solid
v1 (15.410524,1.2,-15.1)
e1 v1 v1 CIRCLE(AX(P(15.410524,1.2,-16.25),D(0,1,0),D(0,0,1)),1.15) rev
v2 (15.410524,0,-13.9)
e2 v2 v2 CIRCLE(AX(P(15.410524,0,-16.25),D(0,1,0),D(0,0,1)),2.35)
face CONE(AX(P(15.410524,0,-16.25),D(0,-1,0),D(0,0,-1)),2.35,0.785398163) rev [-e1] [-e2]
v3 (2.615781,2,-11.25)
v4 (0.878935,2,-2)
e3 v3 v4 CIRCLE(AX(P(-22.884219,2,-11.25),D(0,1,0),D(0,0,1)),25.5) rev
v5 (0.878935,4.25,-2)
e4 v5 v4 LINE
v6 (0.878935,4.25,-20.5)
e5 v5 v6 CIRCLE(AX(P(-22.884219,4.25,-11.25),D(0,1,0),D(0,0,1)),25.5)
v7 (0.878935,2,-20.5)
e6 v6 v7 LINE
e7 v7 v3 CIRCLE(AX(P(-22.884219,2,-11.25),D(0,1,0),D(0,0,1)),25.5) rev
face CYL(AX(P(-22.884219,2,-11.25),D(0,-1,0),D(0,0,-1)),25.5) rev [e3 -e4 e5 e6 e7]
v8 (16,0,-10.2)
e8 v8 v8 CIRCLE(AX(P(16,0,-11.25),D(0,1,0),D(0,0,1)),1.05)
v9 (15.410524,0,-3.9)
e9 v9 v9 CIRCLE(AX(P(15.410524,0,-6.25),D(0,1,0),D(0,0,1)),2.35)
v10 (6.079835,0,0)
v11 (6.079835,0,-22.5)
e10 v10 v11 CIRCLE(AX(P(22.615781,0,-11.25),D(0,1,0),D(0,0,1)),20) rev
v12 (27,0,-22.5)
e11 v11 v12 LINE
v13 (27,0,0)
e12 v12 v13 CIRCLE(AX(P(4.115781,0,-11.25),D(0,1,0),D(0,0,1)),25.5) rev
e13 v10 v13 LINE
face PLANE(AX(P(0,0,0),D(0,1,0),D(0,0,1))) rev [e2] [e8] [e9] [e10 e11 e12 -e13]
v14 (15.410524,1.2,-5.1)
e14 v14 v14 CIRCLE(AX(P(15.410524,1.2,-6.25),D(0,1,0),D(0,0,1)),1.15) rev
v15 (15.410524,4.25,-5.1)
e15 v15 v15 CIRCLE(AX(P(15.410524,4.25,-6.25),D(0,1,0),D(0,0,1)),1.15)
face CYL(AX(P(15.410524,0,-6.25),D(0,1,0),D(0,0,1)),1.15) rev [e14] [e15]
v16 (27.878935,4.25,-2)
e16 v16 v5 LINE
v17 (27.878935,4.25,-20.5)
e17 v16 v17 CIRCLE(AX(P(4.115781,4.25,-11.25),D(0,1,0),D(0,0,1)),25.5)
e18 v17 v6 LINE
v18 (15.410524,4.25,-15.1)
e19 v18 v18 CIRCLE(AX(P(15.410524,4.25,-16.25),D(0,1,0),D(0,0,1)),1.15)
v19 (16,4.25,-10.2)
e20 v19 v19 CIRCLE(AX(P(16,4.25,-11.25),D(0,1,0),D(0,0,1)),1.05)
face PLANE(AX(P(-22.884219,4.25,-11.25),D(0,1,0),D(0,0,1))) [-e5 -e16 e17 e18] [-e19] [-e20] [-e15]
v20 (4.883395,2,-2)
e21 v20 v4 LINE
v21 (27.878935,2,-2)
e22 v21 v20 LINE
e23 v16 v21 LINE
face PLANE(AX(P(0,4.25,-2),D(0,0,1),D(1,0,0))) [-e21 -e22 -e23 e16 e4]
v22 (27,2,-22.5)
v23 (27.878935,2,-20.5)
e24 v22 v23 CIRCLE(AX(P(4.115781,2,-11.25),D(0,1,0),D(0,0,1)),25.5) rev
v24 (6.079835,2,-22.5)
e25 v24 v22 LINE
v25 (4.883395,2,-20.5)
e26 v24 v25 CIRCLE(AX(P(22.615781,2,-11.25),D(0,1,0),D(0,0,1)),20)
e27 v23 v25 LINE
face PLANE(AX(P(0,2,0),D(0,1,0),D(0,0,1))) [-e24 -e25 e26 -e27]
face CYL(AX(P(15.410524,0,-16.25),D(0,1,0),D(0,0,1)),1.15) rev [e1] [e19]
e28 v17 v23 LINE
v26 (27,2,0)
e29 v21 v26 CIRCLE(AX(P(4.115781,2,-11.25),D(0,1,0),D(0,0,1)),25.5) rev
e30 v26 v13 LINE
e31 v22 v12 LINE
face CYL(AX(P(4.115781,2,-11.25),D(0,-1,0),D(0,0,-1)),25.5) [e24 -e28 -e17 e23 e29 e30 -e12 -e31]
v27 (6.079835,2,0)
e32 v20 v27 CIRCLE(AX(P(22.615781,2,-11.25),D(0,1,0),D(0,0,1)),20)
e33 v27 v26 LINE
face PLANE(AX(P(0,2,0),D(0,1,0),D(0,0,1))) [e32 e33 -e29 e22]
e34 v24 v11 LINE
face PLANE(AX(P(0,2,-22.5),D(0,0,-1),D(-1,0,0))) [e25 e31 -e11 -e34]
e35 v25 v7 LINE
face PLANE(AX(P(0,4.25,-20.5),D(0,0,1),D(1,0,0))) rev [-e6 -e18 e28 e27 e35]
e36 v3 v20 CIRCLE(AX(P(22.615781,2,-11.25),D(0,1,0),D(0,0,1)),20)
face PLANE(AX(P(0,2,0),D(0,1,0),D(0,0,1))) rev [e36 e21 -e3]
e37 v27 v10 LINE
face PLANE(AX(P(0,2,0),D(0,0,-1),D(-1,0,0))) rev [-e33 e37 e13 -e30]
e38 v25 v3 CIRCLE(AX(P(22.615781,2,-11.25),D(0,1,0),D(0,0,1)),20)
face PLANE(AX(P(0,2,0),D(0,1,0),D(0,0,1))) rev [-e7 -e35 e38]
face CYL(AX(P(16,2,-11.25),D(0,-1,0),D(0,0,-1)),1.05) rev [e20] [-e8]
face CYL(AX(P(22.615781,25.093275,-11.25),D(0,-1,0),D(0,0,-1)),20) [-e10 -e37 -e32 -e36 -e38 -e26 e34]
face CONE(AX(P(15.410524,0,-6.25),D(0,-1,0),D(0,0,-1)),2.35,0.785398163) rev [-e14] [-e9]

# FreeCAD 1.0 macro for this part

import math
import FreeCAD as App
import Part
import Sketcher
Q = App.Units.Quantity


def edges_at(feature, points):
    """Names of the edges that pass closest to the given points."""
    edges = feature.Shape.Edges
    near = lambda p: min(range(len(edges)), key=lambda i: edges[i].distToShape(Part.Vertex(*p))[0])
    return sorted({f"Edge{near(p) + 1}" for p in points})

doc = App.newDocument("Part")
body = doc.addObject("PartDesign::Body", "Body")

# Sketch on XZ plane
sketch1 = doc.addObject("Sketcher::SketchObject", "Sketch")
body.addObject(sketch1)
sketch1.AttachmentSupport = (doc.XZ_Plane, [""])
sketch1.MapMode = "FlatFace"
sketch1.addGeometry(Part.LineSegment(App.Vector(0.9, -22.5, 0), App.Vector(0.9, -20.5, 0)), False)
sketch1.addGeometry(Part.ArcOfCircle(Part.Circle(App.Vector(-22.9, -11.2, 0), App.Vector(0, 0, 1), 25.5), math.radians(-21), math.radians(21)), False)
sketch1.addGeometry(Part.LineSegment(App.Vector(0.9, -2, 0), App.Vector(0.9, 0, 0)), False)
sketch1.addGeometry(Part.LineSegment(App.Vector(0.9, 0, 0), App.Vector(27, 0, 0)), False)
sketch1.addGeometry(Part.ArcOfCircle(Part.Circle(App.Vector(4.1, -11.2, 0), App.Vector(0, 0, 1), 25.5), math.radians(-26), math.radians(26)), False)
sketch1.addGeometry(Part.LineSegment(App.Vector(27, -22.5, 0), App.Vector(0.9, -22.5, 0)), False)
sketch1.addGeometry(Part.Circle(App.Vector(16, -11.2, 0), App.Vector(0, 0, 1), 1.1), False)
sketch1.addConstraint(Sketcher.Constraint("Coincident", 0, 2, 1, 1))
sketch1.addConstraint(Sketcher.Constraint("Coincident", 1, 2, 2, 1))
sketch1.addConstraint(Sketcher.Constraint("Coincident", 2, 2, 3, 1))
sketch1.addConstraint(Sketcher.Constraint("Coincident", 3, 2, 4, 2))
sketch1.addConstraint(Sketcher.Constraint("Coincident", 4, 1, 5, 1))
sketch1.addConstraint(Sketcher.Constraint("Coincident", 5, 2, 0, 1))
sketch1.addConstraint(Sketcher.Constraint("Vertical", 0))
sketch1.addConstraint(Sketcher.Constraint("Vertical", 2))
sketch1.addConstraint(Sketcher.Constraint("Horizontal", 3))
sketch1.addConstraint(Sketcher.Constraint("Horizontal", 5))
sketch1.addConstraint(Sketcher.Constraint("Equal", 1, 4))
sketch1.addConstraint(Sketcher.Constraint("PointOnObject", 2, 2, -1))
sketch1.addConstraint(Sketcher.Constraint("Horizontal", 1, 3, 4, 3))
sketch1.addConstraint(Sketcher.Constraint("Horizontal", 4, 3, 6, 3))
sketch1.addConstraint(Sketcher.Constraint("Vertical", 0, 2, 1, 2))
sketch1.addConstraint(Sketcher.Constraint("Vertical", 3, 2, 4, 1))
sketch1.addConstraint(Sketcher.Constraint("Diameter", 6, Q("2.1 mm")))
sketch1.addConstraint(Sketcher.Constraint("Radius", 1, Q("25.5 mm")))
sketch1.addConstraint(Sketcher.Constraint("DistanceY", 0, 1, 0, 2, Q("2 mm")))
sketch1.addConstraint(Sketcher.Constraint("DistanceX", -1, 1, 6, 3, Q("16 mm")))
sketch1.addConstraint(Sketcher.Constraint("DistanceX", -1, 1, 3, 2, Q("27 mm")))
sketch1.addConstraint(Sketcher.Constraint("DistanceX", 1, 3, 4, 3, Q("27 mm")))
sketch1.addConstraint(Sketcher.Constraint("DistanceY", 0, 2, -1, 1, Q("20.5 mm")))
pad1 = doc.addObject("PartDesign::Pad", "Pad")
body.addObject(pad1)
pad1.Profile = sketch1
pad1.Length = 2
pad1.Reversed = True

# Sketch on XZ plane
sketch2 = doc.addObject("Sketcher::SketchObject", "Sketch001")
body.addObject(sketch2)
sketch2.AttachmentSupport = (doc.XZ_Plane, [""])
sketch2.MapMode = "FlatFace"
sketch2.AttachmentOffset = App.Placement(App.Vector(0, 0, -2), App.Rotation())
sketch2.addGeometry(Part.LineSegment(App.Vector(27.9, -20.5, 0), App.Vector(0.9, -20.5, 0)), False)
sketch2.addGeometry(Part.ArcOfCircle(Part.Circle(App.Vector(-22.9, -11.2, 0), App.Vector(0, 0, 1), 25.5), math.radians(-21), math.radians(21)), False)
sketch2.addGeometry(Part.LineSegment(App.Vector(0.9, -2, 0), App.Vector(27.9, -2, 0)), False)
sketch2.addGeometry(Part.ArcOfCircle(Part.Circle(App.Vector(4.1, -11.2, 0), App.Vector(0, 0, 1), 25.5), math.radians(-21), math.radians(21)), False)
sketch2.addGeometry(Part.Circle(App.Vector(16, -11.2, 0), App.Vector(0, 0, 1), 1.1), False)
sketch2.addConstraint(Sketcher.Constraint("Coincident", 0, 2, 1, 1))
sketch2.addConstraint(Sketcher.Constraint("Coincident", 1, 2, 2, 1))
sketch2.addConstraint(Sketcher.Constraint("Coincident", 2, 2, 3, 2))
sketch2.addConstraint(Sketcher.Constraint("Coincident", 3, 1, 0, 1))
sketch2.addConstraint(Sketcher.Constraint("Horizontal", 0))
sketch2.addConstraint(Sketcher.Constraint("Horizontal", 2))
sketch2.addConstraint(Sketcher.Constraint("Equal", 1, 3))
sketch2.addConstraint(Sketcher.Constraint("Horizontal", 1, 3, 3, 3))
sketch2.addConstraint(Sketcher.Constraint("Horizontal", 3, 3, 4, 3))
sketch2.addConstraint(Sketcher.Constraint("Vertical", 0, 2, 1, 2))
sketch2.addConstraint(Sketcher.Constraint("Diameter", 4, Q("2.1 mm")))
sketch2.addConstraint(Sketcher.Constraint("Radius", 1, Q("25.5 mm")))
sketch2.addConstraint(Sketcher.Constraint("DistanceX", 0, 2, 0, 1, Q("27 mm")))
sketch2.addConstraint(Sketcher.Constraint("DistanceX", -1, 1, 4, 3, Q("16 mm")))
sketch2.addConstraint(Sketcher.Constraint("DistanceY", 1, 2, -1, 1, Q("2 mm")))
sketch2.addConstraint(Sketcher.Constraint("DistanceY", 0, 2, -1, 1, Q("20.5 mm")))
sketch2.addConstraint(Sketcher.Constraint("DistanceX", 1, 3, -1, 1, Q("22.884219 mm")))
pad2 = doc.addObject("PartDesign::Pad", "Pad001")
body.addObject(pad2)
pad2.Profile = sketch2
pad2.Length = 2.25
pad2.Reversed = True

# Sketch on XZ plane
sketch3 = doc.addObject("Sketcher::SketchObject", "Sketch002")
body.addObject(sketch3)
sketch3.AttachmentSupport = (doc.XZ_Plane, [""])
sketch3.MapMode = "FlatFace"
sketch3.addGeometry(Part.LineSegment(App.Vector(6, 0, 0), App.Vector(1, 0, 0)), False)
sketch3.addGeometry(Part.LineSegment(App.Vector(1, 0, 0), App.Vector(1, -22, 0)), False)
sketch3.addGeometry(Part.LineSegment(App.Vector(1, -22, 0), App.Vector(6, -22, 0)), False)
sketch3.addGeometry(Part.ArcOfCircle(Part.Circle(App.Vector(23, -11, 0), App.Vector(0, 0, 1), 20), math.radians(146), math.radians(214)), False)
sketch3.addConstraint(Sketcher.Constraint("Coincident", 0, 2, 1, 1))
sketch3.addConstraint(Sketcher.Constraint("Coincident", 1, 2, 2, 1))
sketch3.addConstraint(Sketcher.Constraint("Coincident", 2, 2, 3, 2))
sketch3.addConstraint(Sketcher.Constraint("Coincident", 3, 1, 0, 1))
sketch3.addConstraint(Sketcher.Constraint("Horizontal", 0))
sketch3.addConstraint(Sketcher.Constraint("Vertical", 1))
sketch3.addConstraint(Sketcher.Constraint("Horizontal", 2))
sketch3.addConstraint(Sketcher.Constraint("PointOnObject", 0, 2, -1))
sketch3.addConstraint(Sketcher.Constraint("Vertical", 2, 2, 3, 1))
sketch3.addConstraint(Sketcher.Constraint("Radius", 3, Q("20 mm")))
sketch3.addConstraint(Sketcher.Constraint("DistanceY", 1, 2, 1, 1, Q("22.5 mm")))
sketch3.addConstraint(Sketcher.Constraint("DistanceX", 0, 2, 0, 1, Q("5.2009 mm")))
sketch3.addConstraint(Sketcher.Constraint("DistanceX", -1, 1, 3, 3, Q("22.615781 mm")))
pocket1 = doc.addObject("PartDesign::Pocket", "Pocket")
body.addObject(pocket1)
pocket1.Profile = sketch3
pocket1.Length = 2

# Sketch on XZ plane
sketch4 = doc.addObject("Sketcher::SketchObject", "Sketch003")
body.addObject(sketch4)
sketch4.AttachmentSupport = (doc.XZ_Plane, [""])
sketch4.MapMode = "FlatFace"
sketch4.AttachmentOffset = App.Placement(App.Vector(0, 0, -4.25), App.Rotation())
sketch4.addGeometry(Part.Circle(App.Vector(15.4, -6.2, 0), App.Vector(0, 0, 1), 1.1), False)
sketch4.addGeometry(Part.Circle(App.Vector(15.4, -16.2, 0), App.Vector(0, 0, 1), 1.1), False)
sketch4.addConstraint(Sketcher.Constraint("Equal", 0, 1))
sketch4.addConstraint(Sketcher.Constraint("Vertical", 0, 3, 1, 3))
sketch4.addConstraint(Sketcher.Constraint("Diameter", 0, Q("2.3 mm")))
sketch4.addConstraint(Sketcher.Constraint("DistanceY", 1, 3, 0, 3, Q("10 mm")))
sketch4.addConstraint(Sketcher.Constraint("DistanceY", 0, 3, -1, 1, Q("6.25 mm")))
sketch4.addConstraint(Sketcher.Constraint("DistanceX", -1, 1, 0, 3, Q("15.410524 mm")))
pocket2 = doc.addObject("PartDesign::Pocket", "Pocket001")
body.addObject(pocket2)
pocket2.Profile = sketch4
pocket2.Type = "ThroughAll"
pocket2.Reversed = True
doc.recompute()

chamfer = doc.addObject("PartDesign::Chamfer", "Chamfer")
body.addObject(chamfer)
chamfer.Base = (pocket2, edges_at(pocket2, [(14.261, 0, -16.25), (14.261, 0, -6.25)]))
chamfer.Size = 1.2

doc.recompute()
